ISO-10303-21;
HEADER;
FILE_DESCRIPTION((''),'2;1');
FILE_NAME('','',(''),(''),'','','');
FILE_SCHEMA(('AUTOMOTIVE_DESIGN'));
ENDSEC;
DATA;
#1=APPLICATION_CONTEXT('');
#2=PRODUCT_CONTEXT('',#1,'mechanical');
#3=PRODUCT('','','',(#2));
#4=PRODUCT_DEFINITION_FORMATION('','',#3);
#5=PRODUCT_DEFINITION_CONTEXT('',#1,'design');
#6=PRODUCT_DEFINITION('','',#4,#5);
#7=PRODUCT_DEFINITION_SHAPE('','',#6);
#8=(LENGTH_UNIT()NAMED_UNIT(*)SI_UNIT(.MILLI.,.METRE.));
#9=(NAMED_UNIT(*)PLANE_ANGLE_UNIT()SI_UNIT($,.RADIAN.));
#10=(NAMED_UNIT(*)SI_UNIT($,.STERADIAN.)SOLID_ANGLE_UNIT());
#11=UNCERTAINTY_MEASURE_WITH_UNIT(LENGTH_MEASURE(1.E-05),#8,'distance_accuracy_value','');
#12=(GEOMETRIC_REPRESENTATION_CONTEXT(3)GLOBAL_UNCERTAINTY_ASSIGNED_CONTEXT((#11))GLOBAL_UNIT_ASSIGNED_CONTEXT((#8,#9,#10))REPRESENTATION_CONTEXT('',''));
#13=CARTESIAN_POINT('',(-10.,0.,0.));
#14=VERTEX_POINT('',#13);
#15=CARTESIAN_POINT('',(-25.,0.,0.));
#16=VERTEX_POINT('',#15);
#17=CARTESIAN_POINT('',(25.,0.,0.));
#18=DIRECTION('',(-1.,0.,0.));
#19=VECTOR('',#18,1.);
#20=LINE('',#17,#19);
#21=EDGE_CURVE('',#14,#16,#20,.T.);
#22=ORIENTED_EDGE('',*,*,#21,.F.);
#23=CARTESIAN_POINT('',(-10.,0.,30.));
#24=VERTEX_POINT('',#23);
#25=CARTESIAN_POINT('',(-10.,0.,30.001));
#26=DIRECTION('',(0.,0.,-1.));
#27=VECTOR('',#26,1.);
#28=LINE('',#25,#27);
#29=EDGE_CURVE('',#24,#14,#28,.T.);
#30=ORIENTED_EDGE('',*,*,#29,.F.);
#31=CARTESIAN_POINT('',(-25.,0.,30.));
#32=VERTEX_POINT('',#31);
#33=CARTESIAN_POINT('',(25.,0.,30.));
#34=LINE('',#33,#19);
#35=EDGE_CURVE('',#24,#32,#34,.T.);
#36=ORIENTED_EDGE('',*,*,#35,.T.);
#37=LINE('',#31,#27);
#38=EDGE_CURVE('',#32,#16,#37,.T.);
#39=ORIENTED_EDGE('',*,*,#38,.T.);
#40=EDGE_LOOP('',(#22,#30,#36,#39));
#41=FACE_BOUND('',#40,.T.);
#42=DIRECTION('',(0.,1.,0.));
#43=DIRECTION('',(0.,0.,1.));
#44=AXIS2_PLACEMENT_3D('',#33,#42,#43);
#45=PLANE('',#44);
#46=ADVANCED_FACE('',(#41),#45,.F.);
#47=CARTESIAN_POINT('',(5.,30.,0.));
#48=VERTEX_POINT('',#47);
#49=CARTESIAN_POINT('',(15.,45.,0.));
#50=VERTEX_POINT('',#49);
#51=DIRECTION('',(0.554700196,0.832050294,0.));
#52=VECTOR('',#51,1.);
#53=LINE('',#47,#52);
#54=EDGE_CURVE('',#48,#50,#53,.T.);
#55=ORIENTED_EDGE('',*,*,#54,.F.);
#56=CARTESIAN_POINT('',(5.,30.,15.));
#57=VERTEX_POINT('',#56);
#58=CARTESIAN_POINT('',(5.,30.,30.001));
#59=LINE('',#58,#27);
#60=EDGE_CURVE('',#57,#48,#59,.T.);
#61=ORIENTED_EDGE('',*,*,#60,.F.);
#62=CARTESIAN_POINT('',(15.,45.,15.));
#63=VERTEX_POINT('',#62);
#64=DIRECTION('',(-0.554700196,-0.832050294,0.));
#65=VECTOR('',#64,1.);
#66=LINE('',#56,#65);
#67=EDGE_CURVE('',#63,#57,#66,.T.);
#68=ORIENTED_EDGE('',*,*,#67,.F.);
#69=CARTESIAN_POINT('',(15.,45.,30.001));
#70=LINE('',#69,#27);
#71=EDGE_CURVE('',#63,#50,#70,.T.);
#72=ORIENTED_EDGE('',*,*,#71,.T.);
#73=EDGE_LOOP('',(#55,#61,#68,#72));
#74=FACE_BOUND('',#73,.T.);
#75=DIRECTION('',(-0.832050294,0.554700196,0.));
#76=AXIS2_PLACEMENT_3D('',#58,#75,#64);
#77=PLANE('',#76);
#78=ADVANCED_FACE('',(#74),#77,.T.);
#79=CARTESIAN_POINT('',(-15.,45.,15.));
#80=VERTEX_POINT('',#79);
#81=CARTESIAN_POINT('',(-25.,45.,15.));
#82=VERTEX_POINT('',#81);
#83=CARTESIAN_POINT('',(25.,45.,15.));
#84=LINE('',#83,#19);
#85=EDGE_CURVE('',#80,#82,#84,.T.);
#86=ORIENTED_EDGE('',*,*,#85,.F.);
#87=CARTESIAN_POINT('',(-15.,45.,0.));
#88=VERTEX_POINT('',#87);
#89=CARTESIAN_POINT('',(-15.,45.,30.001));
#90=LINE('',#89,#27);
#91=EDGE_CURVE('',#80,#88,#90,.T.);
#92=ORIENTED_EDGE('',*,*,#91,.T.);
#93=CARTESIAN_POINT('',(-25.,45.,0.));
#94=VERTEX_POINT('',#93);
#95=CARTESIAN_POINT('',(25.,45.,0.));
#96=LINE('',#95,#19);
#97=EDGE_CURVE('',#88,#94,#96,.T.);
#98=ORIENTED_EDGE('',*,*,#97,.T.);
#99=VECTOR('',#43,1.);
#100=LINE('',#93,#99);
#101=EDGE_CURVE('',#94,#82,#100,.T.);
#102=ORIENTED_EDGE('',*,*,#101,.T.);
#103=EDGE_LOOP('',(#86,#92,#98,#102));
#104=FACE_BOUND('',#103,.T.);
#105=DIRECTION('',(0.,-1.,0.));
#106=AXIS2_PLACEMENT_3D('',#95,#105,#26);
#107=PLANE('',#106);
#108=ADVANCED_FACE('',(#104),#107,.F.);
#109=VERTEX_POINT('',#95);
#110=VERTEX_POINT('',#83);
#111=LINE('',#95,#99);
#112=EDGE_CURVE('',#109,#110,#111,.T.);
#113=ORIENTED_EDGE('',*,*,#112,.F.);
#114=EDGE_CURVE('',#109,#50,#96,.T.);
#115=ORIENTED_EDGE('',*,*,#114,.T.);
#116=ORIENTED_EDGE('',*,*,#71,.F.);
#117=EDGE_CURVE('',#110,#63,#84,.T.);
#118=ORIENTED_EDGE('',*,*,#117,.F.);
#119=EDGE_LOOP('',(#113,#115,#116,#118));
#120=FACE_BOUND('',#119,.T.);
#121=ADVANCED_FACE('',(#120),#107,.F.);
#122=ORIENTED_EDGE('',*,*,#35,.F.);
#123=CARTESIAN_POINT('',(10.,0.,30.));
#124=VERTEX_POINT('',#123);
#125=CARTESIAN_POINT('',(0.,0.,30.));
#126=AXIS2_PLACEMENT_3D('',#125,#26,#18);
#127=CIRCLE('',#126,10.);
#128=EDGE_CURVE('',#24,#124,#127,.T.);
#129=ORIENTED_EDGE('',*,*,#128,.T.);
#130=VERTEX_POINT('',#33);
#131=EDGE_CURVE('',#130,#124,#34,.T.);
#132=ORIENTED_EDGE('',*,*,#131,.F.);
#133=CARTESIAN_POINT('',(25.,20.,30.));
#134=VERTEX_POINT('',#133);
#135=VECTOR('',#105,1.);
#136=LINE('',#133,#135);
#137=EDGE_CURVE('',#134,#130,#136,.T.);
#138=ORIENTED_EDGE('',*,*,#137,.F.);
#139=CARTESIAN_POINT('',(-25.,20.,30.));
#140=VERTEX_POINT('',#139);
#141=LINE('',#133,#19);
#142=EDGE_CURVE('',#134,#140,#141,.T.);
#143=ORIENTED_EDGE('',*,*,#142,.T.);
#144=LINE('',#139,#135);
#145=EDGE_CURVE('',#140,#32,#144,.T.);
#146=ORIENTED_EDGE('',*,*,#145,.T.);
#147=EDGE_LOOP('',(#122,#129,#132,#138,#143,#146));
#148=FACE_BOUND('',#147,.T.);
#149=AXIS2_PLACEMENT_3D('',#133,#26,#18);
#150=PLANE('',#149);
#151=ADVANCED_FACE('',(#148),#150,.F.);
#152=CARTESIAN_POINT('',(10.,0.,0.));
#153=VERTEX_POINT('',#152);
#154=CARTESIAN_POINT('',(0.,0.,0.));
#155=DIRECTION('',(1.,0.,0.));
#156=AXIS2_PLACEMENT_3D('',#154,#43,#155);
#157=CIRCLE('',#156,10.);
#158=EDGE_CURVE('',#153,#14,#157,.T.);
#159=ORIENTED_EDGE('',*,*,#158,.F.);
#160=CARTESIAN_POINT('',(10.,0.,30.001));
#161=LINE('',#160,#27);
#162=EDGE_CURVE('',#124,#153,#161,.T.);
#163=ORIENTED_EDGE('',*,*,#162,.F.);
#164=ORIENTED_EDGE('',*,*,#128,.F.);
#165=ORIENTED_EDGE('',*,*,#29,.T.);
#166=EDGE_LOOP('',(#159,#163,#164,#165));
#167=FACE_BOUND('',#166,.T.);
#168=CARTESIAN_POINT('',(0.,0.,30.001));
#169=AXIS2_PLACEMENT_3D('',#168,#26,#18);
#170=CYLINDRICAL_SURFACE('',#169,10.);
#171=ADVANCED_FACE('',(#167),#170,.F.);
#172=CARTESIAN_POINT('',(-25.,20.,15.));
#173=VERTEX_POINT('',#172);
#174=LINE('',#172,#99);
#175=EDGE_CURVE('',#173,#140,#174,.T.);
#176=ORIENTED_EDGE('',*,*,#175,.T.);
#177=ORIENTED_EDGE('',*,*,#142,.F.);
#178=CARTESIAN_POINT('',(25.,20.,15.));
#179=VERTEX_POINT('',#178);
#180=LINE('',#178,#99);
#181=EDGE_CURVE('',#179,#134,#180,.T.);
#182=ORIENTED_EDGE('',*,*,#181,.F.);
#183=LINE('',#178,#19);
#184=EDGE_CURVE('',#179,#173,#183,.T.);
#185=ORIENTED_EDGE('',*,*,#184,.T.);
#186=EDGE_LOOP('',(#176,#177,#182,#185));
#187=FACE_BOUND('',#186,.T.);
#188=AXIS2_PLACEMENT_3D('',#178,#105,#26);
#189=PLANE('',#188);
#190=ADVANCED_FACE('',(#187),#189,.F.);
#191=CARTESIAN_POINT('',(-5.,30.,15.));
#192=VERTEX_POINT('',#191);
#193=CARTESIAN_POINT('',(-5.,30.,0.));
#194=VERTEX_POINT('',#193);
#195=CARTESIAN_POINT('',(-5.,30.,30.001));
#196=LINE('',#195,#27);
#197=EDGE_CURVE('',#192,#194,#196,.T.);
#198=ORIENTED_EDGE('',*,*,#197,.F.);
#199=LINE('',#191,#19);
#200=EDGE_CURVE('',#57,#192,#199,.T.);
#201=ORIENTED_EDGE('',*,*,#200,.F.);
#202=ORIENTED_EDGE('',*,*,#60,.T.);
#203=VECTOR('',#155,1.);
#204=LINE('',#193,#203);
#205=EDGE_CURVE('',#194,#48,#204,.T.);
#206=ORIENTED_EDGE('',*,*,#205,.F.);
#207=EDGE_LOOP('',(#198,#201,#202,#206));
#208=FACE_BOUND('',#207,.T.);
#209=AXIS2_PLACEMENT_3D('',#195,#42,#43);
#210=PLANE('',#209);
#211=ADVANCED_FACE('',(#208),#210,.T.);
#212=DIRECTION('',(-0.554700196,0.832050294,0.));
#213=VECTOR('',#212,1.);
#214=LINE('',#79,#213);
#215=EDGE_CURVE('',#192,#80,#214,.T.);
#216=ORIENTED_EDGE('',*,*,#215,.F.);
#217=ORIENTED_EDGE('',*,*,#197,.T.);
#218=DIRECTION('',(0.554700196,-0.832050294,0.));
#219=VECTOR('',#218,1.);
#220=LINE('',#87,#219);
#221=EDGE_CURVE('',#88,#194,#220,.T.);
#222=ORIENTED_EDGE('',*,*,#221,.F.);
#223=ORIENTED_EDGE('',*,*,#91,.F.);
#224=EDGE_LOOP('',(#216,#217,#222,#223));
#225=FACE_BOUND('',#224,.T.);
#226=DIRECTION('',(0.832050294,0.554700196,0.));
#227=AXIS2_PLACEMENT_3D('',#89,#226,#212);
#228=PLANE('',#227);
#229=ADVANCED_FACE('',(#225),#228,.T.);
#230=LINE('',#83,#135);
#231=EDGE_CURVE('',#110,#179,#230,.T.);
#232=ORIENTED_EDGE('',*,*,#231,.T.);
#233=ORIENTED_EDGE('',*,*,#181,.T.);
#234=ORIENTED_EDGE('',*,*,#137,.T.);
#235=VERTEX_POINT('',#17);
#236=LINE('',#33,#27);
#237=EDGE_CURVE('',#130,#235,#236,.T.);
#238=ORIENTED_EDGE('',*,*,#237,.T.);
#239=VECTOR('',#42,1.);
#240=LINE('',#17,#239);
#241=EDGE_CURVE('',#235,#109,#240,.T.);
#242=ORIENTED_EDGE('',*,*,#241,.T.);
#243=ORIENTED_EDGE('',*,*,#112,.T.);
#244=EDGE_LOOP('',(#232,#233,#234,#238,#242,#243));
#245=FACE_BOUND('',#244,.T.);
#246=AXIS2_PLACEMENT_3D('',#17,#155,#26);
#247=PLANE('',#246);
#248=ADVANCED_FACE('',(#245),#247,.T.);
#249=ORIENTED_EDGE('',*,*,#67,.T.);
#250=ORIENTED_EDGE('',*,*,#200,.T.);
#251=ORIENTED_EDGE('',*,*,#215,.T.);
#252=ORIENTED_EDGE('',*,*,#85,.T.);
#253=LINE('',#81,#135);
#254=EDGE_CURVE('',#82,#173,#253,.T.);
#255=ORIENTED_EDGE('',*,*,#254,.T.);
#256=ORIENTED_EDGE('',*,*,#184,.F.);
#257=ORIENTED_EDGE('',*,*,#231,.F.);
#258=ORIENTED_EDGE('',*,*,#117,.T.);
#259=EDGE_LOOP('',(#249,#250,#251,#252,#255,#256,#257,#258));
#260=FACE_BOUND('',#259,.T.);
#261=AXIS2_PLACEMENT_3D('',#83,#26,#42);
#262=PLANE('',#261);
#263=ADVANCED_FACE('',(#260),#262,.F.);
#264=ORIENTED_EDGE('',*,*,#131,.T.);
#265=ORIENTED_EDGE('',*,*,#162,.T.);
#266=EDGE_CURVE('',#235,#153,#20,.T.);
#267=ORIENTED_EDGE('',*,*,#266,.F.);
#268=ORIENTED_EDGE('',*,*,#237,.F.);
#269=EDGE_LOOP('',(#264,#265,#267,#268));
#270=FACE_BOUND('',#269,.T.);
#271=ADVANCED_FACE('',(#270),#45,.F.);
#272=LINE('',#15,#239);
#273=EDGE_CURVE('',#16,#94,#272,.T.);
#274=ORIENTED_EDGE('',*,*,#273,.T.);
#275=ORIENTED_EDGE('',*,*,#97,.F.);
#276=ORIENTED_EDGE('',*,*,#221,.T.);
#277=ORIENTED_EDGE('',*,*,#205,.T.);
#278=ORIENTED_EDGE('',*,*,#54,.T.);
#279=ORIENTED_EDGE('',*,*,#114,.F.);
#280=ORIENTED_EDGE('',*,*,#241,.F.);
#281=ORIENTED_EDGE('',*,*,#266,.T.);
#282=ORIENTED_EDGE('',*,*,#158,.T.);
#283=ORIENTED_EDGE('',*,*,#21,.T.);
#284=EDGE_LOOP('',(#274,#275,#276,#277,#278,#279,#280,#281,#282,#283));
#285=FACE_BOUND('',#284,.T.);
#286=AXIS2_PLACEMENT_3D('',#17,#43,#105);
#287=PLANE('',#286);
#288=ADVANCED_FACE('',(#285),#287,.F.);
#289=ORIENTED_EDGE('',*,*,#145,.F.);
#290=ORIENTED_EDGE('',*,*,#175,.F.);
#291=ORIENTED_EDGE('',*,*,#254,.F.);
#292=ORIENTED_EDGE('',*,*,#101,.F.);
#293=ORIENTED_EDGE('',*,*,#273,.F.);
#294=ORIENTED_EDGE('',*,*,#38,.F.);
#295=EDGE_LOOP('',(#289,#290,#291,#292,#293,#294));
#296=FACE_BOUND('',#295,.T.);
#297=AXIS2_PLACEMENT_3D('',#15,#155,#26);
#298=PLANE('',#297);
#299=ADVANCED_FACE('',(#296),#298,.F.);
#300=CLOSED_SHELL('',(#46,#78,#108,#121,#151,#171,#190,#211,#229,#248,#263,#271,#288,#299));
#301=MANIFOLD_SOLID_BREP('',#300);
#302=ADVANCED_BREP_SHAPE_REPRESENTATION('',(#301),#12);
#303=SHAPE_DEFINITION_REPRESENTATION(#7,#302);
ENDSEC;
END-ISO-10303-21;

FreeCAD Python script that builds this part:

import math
import FreeCAD as App
import Part
import Sketcher
from FreeCAD import Vector


def add_polygon(sketch, points):
    """Adds a closed chain of lines whose ends are joined by coincident constraints."""
    first, n = sketch.GeometryCount, len(points)
    for a, b in zip(points, points[1:] + points[:1]):
        sketch.addGeometry(Part.LineSegment(App.Vector(*a, 0), App.Vector(*b, 0)), False)
    for i in range(n):
        sketch.addConstraint(Sketcher.Constraint("Coincident", first + i, 2, first + (i + 1) % n, 1))

doc = App.newDocument("Part")
params = doc.addObject("Spreadsheet::Sheet", "Params")
for row, (alias, value) in enumerate([
    ("sketch1_width", "45 mm"),
    ("sketch1_width2", "25 mm"),
    ("sketch1_height", "15 mm"),
    ("pad1_length", "50 mm"),
    ("sketch2_radius", "10 mm"),
    ("sketch3_width", "10 mm"),
    ("sketch3_width2", "30 mm"),
], start=1):
    params.set(f"A{row}", alias)
    params.set(f"B{row}", "=" + value)
    params.setAlias(f"B{row}", alias)

body = doc.addObject("PartDesign::Body", "Body")

sketch1 = doc.addObject("Sketcher::SketchObject", "Sketch")
body.addObject(sketch1)
sketch1.AttachmentSupport = (doc.YZ_Plane, [""])
sketch1.MapMode = "FlatFace"
add_polygon(sketch1, [(0, 0), (45, 0), (45, 15), (20, 15), (20, 30), (0, 30)])
sketch1.addConstraint([
    Sketcher.Constraint("Horizontal", 0),
    Sketcher.Constraint("Vertical", 1),
    Sketcher.Constraint("Horizontal", 2),
    Sketcher.Constraint("Vertical", 3),
    Sketcher.Constraint("Horizontal", 4),
    Sketcher.Constraint("Vertical", 5),
    Sketcher.Constraint("Coincident", 5, 2, -1, 1),
    Sketcher.Constraint("Equal", 1, 3),
    Sketcher.Constraint("DistanceX", 0, 1, 0, 2, 45.0),
    Sketcher.Constraint("DistanceX", 2, 2, 2, 1, 25.0),
    Sketcher.Constraint("DistanceY", 1, 1, 1, 2, 15.0),
])
sketch1.setExpression("Constraints[14]", "Params.sketch1_width")
sketch1.setExpression("Constraints[15]", "Params.sketch1_width2")
sketch1.setExpression("Constraints[16]", "Params.sketch1_height")
pad1 = doc.addObject("PartDesign::Pad", "Pad")
body.addObject(pad1)
pad1.Profile = sketch1
pad1.setExpression("Length", "Params.pad1_length")
pad1.Midplane = True

sketch2 = doc.addObject("Sketcher::SketchObject", "Sketch001")
body.addObject(sketch2)
sketch2.AttachmentSupport = (doc.XY_Plane, [""])
sketch2.MapMode = "FlatFace"
sketch2.addGeometry([
    Part.LineSegment(Vector(-10, 0, 0), Vector(10, 0, 0)),
    Part.ArcOfCircle(Part.Circle(Vector(0, 0, 0), Vector(0, 0, 1), 10), math.radians(0), math.radians(180)),
], False)
sketch2.addConstraint([
    Sketcher.Constraint("Coincident", 0, 1, 1, 2),
    Sketcher.Constraint("Coincident", 1, 1, 0, 2),
    Sketcher.Constraint("Horizontal", 0),
    Sketcher.Constraint("Coincident", 1, 3, -1, 1),
    Sketcher.Constraint("PointOnObject", 0, 1, -1),
    Sketcher.Constraint("Radius", 1, 10.0),
])
sketch2.setExpression("Constraints[5]", "Params.sketch2_radius")
pocket1 = doc.addObject("PartDesign::Pocket", "Pocket")
body.addObject(pocket1)
pocket1.Profile = sketch2
pocket1.Type = "UpToFirst"
pocket1.Reversed = True

sketch3 = doc.addObject("Sketcher::SketchObject", "Sketch002")
body.addObject(sketch3)
sketch3.AttachmentSupport = (doc.XY_Plane, [""])
sketch3.MapMode = "FlatFace"
add_polygon(sketch3, [(-15, 45), (-5, 30), (5, 30), (15, 45)])
sketch3.addConstraint([
    Sketcher.Constraint("Horizontal", 1),
    Sketcher.Constraint("Horizontal", 3),
    Sketcher.Constraint("Equal", 0, 2),
    Sketcher.Constraint("DistanceX", 1, 1, 1, 2, 10.0),
    Sketcher.Constraint("DistanceX", 3, 2, 3, 1, 30.0),
    Sketcher.Constraint("DistanceX", 0, 2, -1, 1, 5.0),
    Sketcher.Constraint("DistanceY", -1, 1, 0, 2, 30.0),
    Sketcher.Constraint("DistanceY", -1, 1, 2, 2, 45.0),
])
sketch3.setExpression("Constraints[7]", "Params.sketch3_width")
sketch3.setExpression("Constraints[8]", "Params.sketch3_width2")
pocket2 = doc.addObject("PartDesign::Pocket", "Pocket001")
body.addObject(pocket2)
pocket2.Profile = sketch3
pocket2.Type = "UpToFirst"
pocket2.Reversed = True

doc.recompute()
